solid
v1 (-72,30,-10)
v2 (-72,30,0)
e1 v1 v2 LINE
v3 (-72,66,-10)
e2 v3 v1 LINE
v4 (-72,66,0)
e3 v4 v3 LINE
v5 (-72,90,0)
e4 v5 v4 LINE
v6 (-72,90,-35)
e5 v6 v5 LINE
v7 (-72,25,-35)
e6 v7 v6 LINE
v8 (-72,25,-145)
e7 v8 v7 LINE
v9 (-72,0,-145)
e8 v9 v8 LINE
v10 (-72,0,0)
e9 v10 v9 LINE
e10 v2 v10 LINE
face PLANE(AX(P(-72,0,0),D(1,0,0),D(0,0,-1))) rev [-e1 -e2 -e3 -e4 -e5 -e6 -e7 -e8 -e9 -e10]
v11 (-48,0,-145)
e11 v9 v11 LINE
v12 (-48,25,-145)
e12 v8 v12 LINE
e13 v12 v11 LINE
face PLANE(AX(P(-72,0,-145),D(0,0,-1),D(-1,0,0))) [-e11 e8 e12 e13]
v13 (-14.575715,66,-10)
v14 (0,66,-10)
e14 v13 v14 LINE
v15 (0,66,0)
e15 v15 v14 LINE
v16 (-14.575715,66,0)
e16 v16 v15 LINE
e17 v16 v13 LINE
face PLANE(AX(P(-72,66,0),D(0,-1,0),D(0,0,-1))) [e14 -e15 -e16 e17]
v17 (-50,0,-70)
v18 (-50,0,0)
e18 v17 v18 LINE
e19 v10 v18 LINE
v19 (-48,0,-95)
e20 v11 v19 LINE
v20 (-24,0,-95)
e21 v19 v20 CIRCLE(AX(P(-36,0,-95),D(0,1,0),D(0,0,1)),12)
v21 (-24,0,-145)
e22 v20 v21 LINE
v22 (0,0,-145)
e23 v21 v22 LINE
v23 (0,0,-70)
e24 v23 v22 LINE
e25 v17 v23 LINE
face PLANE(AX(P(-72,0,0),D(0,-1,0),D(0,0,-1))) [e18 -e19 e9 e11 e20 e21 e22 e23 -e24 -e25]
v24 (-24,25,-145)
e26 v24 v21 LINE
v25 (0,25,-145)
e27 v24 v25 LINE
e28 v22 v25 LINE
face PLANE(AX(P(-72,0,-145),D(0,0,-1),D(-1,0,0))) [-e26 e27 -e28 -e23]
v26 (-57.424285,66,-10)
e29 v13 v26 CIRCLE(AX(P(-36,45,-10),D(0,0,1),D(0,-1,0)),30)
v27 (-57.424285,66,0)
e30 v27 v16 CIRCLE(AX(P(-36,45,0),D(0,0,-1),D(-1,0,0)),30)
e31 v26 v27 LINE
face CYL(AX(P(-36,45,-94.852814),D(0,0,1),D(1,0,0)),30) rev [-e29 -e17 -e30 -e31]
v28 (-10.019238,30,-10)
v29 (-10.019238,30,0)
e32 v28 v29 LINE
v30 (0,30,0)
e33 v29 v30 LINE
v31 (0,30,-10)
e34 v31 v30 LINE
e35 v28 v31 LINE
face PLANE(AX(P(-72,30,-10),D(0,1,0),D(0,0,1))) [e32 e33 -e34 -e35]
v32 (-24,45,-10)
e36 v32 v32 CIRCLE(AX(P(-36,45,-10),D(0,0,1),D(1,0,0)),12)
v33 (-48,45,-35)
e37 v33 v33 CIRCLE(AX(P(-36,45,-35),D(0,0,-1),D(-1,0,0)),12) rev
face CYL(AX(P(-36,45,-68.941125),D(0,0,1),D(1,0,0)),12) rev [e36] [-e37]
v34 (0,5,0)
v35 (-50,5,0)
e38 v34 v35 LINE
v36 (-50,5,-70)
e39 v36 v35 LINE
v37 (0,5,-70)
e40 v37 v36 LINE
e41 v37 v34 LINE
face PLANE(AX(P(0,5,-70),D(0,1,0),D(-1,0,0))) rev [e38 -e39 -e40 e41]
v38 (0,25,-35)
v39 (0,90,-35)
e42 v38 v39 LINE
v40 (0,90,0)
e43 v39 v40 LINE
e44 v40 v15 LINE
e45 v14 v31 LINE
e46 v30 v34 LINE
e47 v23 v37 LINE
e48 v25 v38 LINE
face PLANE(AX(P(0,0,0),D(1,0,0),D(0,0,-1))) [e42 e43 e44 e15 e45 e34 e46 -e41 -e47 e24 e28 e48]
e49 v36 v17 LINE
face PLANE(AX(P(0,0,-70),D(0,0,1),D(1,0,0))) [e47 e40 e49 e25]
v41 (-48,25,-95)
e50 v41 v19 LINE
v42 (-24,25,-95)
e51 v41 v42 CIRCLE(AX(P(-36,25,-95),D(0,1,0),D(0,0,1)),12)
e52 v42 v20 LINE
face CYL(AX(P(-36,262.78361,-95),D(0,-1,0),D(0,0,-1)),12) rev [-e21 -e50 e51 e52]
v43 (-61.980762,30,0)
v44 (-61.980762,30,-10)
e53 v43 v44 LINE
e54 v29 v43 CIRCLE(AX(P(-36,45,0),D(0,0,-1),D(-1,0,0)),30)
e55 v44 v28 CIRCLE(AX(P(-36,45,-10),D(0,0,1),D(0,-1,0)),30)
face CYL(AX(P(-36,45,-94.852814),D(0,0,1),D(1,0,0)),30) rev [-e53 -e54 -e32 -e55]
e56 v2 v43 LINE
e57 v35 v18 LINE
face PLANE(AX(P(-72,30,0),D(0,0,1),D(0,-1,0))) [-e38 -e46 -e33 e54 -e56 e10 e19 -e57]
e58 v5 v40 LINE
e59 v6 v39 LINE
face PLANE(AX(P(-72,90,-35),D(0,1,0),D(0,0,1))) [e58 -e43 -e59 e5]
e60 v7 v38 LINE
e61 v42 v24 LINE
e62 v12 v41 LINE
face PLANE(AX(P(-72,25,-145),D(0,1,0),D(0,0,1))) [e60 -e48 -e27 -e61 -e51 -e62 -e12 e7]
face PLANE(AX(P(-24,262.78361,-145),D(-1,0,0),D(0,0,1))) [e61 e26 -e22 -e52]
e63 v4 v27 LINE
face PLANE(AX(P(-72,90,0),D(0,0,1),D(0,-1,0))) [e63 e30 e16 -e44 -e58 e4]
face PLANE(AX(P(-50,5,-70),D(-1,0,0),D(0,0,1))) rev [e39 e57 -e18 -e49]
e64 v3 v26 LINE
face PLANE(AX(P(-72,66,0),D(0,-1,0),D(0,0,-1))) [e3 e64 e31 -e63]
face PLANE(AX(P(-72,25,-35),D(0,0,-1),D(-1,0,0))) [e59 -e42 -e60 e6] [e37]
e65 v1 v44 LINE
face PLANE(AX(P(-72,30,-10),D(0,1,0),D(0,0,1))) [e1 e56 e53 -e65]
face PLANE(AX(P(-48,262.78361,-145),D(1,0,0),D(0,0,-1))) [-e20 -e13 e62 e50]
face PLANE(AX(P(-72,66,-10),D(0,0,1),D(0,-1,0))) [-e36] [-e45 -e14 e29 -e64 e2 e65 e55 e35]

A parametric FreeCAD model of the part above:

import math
import FreeCAD as App
import Part
import Sketcher
from FreeCAD import Vector
Q = App.Units.Quantity


def add_polygon(sketch, points):
    """Adds a closed chain of lines whose ends are joined by coincident constraints."""
    first, n = sketch.GeometryCount, len(points)
    for a, b in zip(points, points[1:] + points[:1]):
        sketch.addGeometry(Part.LineSegment(App.Vector(*a, 0), App.Vector(*b, 0)), False)
    for i in range(n):
        sketch.addConstraint(Sketcher.Constraint("Coincident", first + i, 2, first + (i + 1) % n, 1))

doc = App.newDocument("Part")
params = doc.addObject("Spreadsheet::Sheet", "Params")
for row, (alias, value) in enumerate([
    ("sketch1_width", "25 mm"),
    ("sketch1_width2", "65 mm"),
    ("sketch1_width3", "24 mm"),
    ("sketch1_width4", "36 mm"),
    ("sketch1_height", "145 mm"),
    ("pad1_length", "72 mm"),
    ("sketch2_radius", "12 mm"),
    ("sketch2_height", "50 mm"),
    ("sketch3_diameter", "60 mm"),
    ("pocket2_length", "10 mm"),
    ("sketch4_diameter", "24 mm"),
    ("pocket3_length", "25 mm"),
    ("sketch5_width", "50 mm"),
    ("sketch5_height", "5 mm"),
    ("pocket4_length", "70 mm"),
], start=1):
    params.set(f"A{row}", alias)
    params.set(f"B{row}", "=" + value)
    params.setAlias(f"B{row}", alias)

body = doc.addObject("PartDesign::Body", "Body")

# Sketch on YZ plane
sketch1 = doc.addObject("Sketcher::SketchObject", "Sketch")
body.addObject(sketch1)
sketch1.AttachmentSupport = (doc.YZ_Plane, [""])
sketch1.MapMode = "FlatFace"
add_polygon(sketch1, [(0, 0), (0, -145), (25, -145), (25, -35), (90, -35), (90, 0), (66, 0), (66, -10), (30, -10), (30, 0)])  # lines 0-9
sketch1.addConstraint(Sketcher.Constraint("Vertical", 0))
sketch1.addConstraint(Sketcher.Constraint("Horizontal", 1))
sketch1.addConstraint(Sketcher.Constraint("Vertical", 2))
sketch1.addConstraint(Sketcher.Constraint("Horizontal", 3))
sketch1.addConstraint(Sketcher.Constraint("Vertical", 4))
sketch1.addConstraint(Sketcher.Constraint("Horizontal", 5))
sketch1.addConstraint(Sketcher.Constraint("Vertical", 6))
sketch1.addConstraint(Sketcher.Constraint("Horizontal", 7))
sketch1.addConstraint(Sketcher.Constraint("Vertical", 8))
sketch1.addConstraint(Sketcher.Constraint("Horizontal", 9))
sketch1.addConstraint(Sketcher.Constraint("Coincident", 9, 2, -1, 1))
sketch1.addConstraint(Sketcher.Constraint("PointOnObject", 4, 2, -1))
sketch1.addConstraint(Sketcher.Constraint("DistanceX", 1, 1, 1, 2, Q("25 mm")))
sketch1.addConstraint(Sketcher.Constraint("DistanceX", 3, 1, 3, 2, Q("65 mm")))
sketch1.addConstraint(Sketcher.Constraint("DistanceX", 5, 2, 5, 1, Q("24 mm")))
sketch1.addConstraint(Sketcher.Constraint("DistanceX", 7, 2, 7, 1, Q("36 mm")))
sketch1.addConstraint(Sketcher.Constraint("DistanceY", 0, 2, 0, 1, Q("145 mm")))
sketch1.addConstraint(Sketcher.Constraint("DistanceY", 2, 1, 2, 2, Q("110 mm")))
sketch1.addConstraint(Sketcher.Constraint("DistanceY", 6, 2, 6, 1, Q("10 mm")))
sketch1.setExpression("Constraints[22]", "Params.sketch1_width")
sketch1.setExpression("Constraints[23]", "Params.sketch1_width2")
sketch1.setExpression("Constraints[24]", "Params.sketch1_width3")
sketch1.setExpression("Constraints[25]", "Params.sketch1_width4")
sketch1.setExpression("Constraints[26]", "Params.sketch1_height")
pad1 = doc.addObject("PartDesign::Pad", "Pad")
body.addObject(pad1)
pad1.Profile = sketch1
pad1.setExpression("Length", "Params.pad1_length")
pad1.Reversed = True

# Sketch on XZ plane
sketch2 = doc.addObject("Sketcher::SketchObject", "Sketch001")
body.addObject(sketch2)
sketch2.AttachmentSupport = (doc.XZ_Plane, [""])
sketch2.MapMode = "FlatFace"
sketch2.AttachmentOffset = App.Placement(Vector(0, 0, -25), App.Rotation())
sketch2.addGeometry(Part.LineSegment(Vector(-24, -95, 0), Vector(-24, -145, 0)), False)
sketch2.addGeometry(Part.LineSegment(Vector(-24, -145, 0), Vector(-48, -145, 0)), False)
sketch2.addGeometry(Part.LineSegment(Vector(-48, -145, 0), Vector(-48, -95, 0)), False)
sketch2.addGeometry(Part.ArcOfCircle(Part.Circle(Vector(-36, -95, 0), Vector(0, 0, 1), 12), math.radians(0), math.radians(180)), False)
sketch2.addConstraint(Sketcher.Constraint("Coincident", 0, 2, 1, 1))
sketch2.addConstraint(Sketcher.Constraint("Coincident", 1, 2, 2, 1))
sketch2.addConstraint(Sketcher.Constraint("Tangent", 2, 2, 3, 2))
sketch2.addConstraint(Sketcher.Constraint("Tangent", 3, 1, 0, 1))
sketch2.addConstraint(Sketcher.Constraint("Vertical", 0))
sketch2.addConstraint(Sketcher.Constraint("Horizontal", 1))
sketch2.addConstraint(Sketcher.Constraint("Vertical", 2))
sketch2.addConstraint(Sketcher.Constraint("Radius", 3, Q("12 mm")))
sketch2.addConstraint(Sketcher.Constraint("DistanceY", 0, 2, 0, 1, Q("50 mm")))
sketch2.addConstraint(Sketcher.Constraint("DistanceX", 3, 3, -1, 1, Q("36 mm")))
sketch2.addConstraint(Sketcher.Constraint("DistanceY", 3, 3, -1, 1, Q("95 mm")))
sketch2.setExpression("Constraints[7]", "Params.sketch2_radius")
sketch2.setExpression("Constraints[8]", "Params.sketch2_height")
pocket1 = doc.addObject("PartDesign::Pocket", "Pocket")
body.addObject(pocket1)
pocket1.Profile = sketch2
pocket1.Type = "ThroughAll"
pocket1.Midplane = True

# Sketch on XY plane
sketch3 = doc.addObject("Sketcher::SketchObject", "Sketch002")
body.addObject(sketch3)
sketch3.AttachmentSupport = (doc.XY_Plane, [""])
sketch3.MapMode = "FlatFace"
sketch3.addGeometry(Part.Circle(Vector(-36, 45, 0), Vector(0, 0, 1), 30), False)
sketch3.addConstraint(Sketcher.Constraint("Diameter", 0, Q("60 mm")))
sketch3.addConstraint(Sketcher.Constraint("DistanceX", 0, 3, -1, 1, Q("36 mm")))
sketch3.addConstraint(Sketcher.Constraint("DistanceY", -1, 1, 0, 3, Q("45 mm")))
sketch3.setExpression("Constraints[0]", "Params.sketch3_diameter")
pocket2 = doc.addObject("PartDesign::Pocket", "Pocket001")
body.addObject(pocket2)
pocket2.Profile = sketch3
pocket2.setExpression("Length", "Params.pocket2_length")

# Sketch on XY plane
sketch4 = doc.addObject("Sketcher::SketchObject", "Sketch003")
body.addObject(sketch4)
sketch4.AttachmentSupport = (doc.XY_Plane, [""])
sketch4.MapMode = "FlatFace"
sketch4.AttachmentOffset = App.Placement(Vector(0, 0, -10), App.Rotation())
sketch4.addGeometry(Part.Circle(Vector(-36, 45, 0), Vector(0, 0, 1), 12), False)
sketch4.addConstraint(Sketcher.Constraint("Diameter", 0, Q("24 mm")))
sketch4.addConstraint(Sketcher.Constraint("DistanceX", 0, 3, -1, 1, Q("36 mm")))
sketch4.addConstraint(Sketcher.Constraint("DistanceY", -1, 1, 0, 3, Q("45 mm")))
sketch4.setExpression("Constraints[0]", "Params.sketch4_diameter")
pocket3 = doc.addObject("PartDesign::Pocket", "Pocket002")
body.addObject(pocket3)
pocket3.Profile = sketch4
pocket3.setExpression("Length", "Params.pocket3_length")

# Sketch on XY plane
sketch5 = doc.addObject("Sketcher::SketchObject", "Sketch004")
body.addObject(sketch5)
sketch5.AttachmentSupport = (doc.XY_Plane, [""])
sketch5.MapMode = "FlatFace"
add_polygon(sketch5, [(-50, 5), (-50, 0), (0, 0), (0, 5)])  # lines 0-3
sketch5.addConstraint(Sketcher.Constraint("Vertical", 0))
sketch5.addConstraint(Sketcher.Constraint("Horizontal", 1))
sketch5.addConstraint(Sketcher.Constraint("Vertical", 2))
sketch5.addConstraint(Sketcher.Constraint("Horizontal", 3))
sketch5.addConstraint(Sketcher.Constraint("Coincident", 1, 2, -1, 1))
sketch5.addConstraint(Sketcher.Constraint("DistanceX", 1, 1, 1, 2, Q("50 mm")))
sketch5.addConstraint(Sketcher.Constraint("DistanceY", 0, 2, 0, 1, Q("5 mm")))
sketch5.setExpression("Constraints[9]", "Params.sketch5_width")
sketch5.setExpression("Constraints[10]", "Params.sketch5_height")
pocket4 = doc.addObject("PartDesign::Pocket", "Pocket003")
body.addObject(pocket4)
pocket4.Profile = sketch5
pocket4.setExpression("Length", "Params.pocket4_length")

doc.recompute()
